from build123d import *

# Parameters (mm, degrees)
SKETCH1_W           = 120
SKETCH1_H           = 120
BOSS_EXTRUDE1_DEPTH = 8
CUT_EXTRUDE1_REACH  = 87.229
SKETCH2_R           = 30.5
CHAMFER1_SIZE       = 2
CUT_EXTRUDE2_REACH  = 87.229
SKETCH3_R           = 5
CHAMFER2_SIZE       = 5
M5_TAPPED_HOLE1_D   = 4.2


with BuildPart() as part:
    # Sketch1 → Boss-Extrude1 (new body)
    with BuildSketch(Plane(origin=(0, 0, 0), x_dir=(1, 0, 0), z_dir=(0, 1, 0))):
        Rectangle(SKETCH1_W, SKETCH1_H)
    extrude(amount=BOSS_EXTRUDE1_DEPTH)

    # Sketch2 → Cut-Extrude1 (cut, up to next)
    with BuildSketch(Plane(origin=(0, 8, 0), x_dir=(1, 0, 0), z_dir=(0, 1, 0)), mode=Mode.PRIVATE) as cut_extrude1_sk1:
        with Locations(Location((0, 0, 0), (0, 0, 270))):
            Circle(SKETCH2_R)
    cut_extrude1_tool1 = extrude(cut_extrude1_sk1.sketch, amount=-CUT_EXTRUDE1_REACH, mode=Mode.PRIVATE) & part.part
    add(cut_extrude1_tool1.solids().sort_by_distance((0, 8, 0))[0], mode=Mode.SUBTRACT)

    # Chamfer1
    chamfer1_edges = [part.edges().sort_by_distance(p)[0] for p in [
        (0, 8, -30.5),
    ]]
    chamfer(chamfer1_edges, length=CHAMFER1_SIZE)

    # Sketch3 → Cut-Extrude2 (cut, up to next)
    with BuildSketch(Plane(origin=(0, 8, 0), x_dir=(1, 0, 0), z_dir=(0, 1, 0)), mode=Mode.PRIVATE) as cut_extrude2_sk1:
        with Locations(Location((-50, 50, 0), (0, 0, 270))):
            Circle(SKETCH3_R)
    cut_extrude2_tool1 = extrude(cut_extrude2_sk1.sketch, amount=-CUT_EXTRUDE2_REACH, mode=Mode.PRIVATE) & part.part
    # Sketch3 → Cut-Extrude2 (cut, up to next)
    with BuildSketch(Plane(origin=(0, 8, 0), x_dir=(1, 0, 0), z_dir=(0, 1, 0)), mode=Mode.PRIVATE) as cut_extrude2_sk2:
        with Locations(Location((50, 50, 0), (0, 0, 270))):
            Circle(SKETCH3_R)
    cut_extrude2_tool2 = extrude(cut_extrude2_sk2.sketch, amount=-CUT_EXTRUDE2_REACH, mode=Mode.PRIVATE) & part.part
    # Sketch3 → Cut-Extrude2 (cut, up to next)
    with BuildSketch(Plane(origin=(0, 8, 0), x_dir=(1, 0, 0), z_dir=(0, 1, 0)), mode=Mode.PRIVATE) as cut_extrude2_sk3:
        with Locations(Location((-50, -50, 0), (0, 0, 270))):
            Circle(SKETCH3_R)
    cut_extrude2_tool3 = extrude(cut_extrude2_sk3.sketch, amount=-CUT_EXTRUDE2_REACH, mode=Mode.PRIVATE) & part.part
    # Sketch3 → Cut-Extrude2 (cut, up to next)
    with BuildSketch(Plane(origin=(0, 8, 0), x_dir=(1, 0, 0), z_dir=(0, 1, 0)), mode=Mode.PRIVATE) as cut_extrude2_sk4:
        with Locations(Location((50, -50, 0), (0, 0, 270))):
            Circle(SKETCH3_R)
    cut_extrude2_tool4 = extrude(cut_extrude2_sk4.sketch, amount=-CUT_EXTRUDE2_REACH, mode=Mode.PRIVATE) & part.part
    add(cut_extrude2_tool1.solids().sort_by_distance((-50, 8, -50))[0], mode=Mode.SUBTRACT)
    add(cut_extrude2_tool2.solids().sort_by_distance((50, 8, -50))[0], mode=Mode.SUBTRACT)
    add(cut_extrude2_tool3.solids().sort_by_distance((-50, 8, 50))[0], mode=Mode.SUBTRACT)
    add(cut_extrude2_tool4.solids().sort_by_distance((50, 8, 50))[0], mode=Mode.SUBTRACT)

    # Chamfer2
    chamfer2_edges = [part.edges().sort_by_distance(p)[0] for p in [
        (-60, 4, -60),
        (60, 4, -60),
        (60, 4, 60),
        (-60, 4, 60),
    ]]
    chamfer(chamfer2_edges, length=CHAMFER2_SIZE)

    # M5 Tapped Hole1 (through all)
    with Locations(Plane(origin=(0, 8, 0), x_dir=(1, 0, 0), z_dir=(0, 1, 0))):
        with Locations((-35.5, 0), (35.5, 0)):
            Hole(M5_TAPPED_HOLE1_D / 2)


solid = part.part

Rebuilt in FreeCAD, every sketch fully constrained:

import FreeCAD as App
import Part
import Sketcher

V = App.Vector


def edges_at(feature, points):
    """Names of the edges that pass closest to the given points."""
    edges = feature.Shape.Edges
    near = lambda p: min(range(len(edges)), key=lambda i: edges[i].distToShape(Part.Vertex(*p))[0])
    return sorted({f"Edge{near(p) + 1}" for p in points})


def add_polygon(sketch, points):
    """Adds a closed chain of lines whose ends are joined by coincident constraints."""
    first, n = sketch.GeometryCount, len(points)
    for a, b in zip(points, points[1:] + points[:1]):
        sketch.addGeometry(Part.LineSegment(App.Vector(*a, 0), App.Vector(*b, 0)), False)
    for i in range(n):
        sketch.addConstraint(Sketcher.Constraint("Coincident", first + i, 2, first + (i + 1) % n, 1))

doc = App.newDocument("Part")
params = doc.addObject("Spreadsheet::Sheet", "Params")
for row, (alias, value) in enumerate([
    ("sketch1_width", "120 mm"),
    ("pad1_length", "8 mm"),
    ("sketch2_diameter", "61 mm"),
    ("chamfer_size", "2 mm"),
    ("sketch3_diameter", "10 mm"),
    ("sketch4_diameter", "10 mm"),
    ("sketch5_diameter", "10 mm"),
    ("sketch6_diameter", "10 mm"),
    ("chamfer2_size", "5 mm"),
    ("sketch7_diameter", "4.2 mm"),
    ("hole_diameter", "4.2 mm"),
], start=1):
    params.set(f"A{row}", alias)
    params.set(f"B{row}", "=" + value)
    params.setAlias(f"B{row}", alias)

body = doc.addObject("PartDesign::Body", "Body")

# Sketch on XZ plane
sketch1 = body.newObject("Sketcher::SketchObject", "Sketch")
sketch1.AttachmentSupport = (doc.getObject("XZ_Plane"), [""])
sketch1.MapMode = "FlatFace"
add_polygon(sketch1, [(-60, -60), (-60, 60), (60, 60), (60, -60)])  # lines 0-3
sketch1.addConstraint([
    Sketcher.Constraint("Vertical", 0),
    Sketcher.Constraint("Horizontal", 1),
    Sketcher.Constraint("Vertical", 2),
    Sketcher.Constraint("Horizontal", 3),
    Sketcher.Constraint("Symmetric", 0, 2, 2, 2, -1, 1),
    Sketcher.Constraint("Equal", 3, 0),
    Sketcher.Constraint("DistanceX", 1, 1, 1, 2, 120.0),
])
sketch1.setExpression("Constraints[10]", "Params.sketch1_width")
pad1 = body.newObject("PartDesign::Pad", "Pad")
pad1.Profile = sketch1
pad1.setExpression("Length", "Params.pad1_length")
pad1.Reversed = True

# Sketch on XZ plane
sketch2 = body.newObject("Sketcher::SketchObject", "Sketch001")
sketch2.AttachmentSupport = (doc.getObject("XZ_Plane"), [""])
sketch2.MapMode = "FlatFace"
sketch2.AttachmentOffset = App.Placement(V(0, 0, -8), App.Rotation())
sketch2.addGeometry(Part.Circle(V(0, 0, 0), V(0, 0, 1), 30), False)
sketch2.addConstraint([
    Sketcher.Constraint("Coincident", 0, 3, -1, 1),
    Sketcher.Constraint("Diameter", 0, 61.0),
])
sketch2.setExpression("Constraints[1]", "Params.sketch2_diameter")
pocket1 = body.newObject("PartDesign::Pocket", "Pocket")
pocket1.Profile = sketch2
pocket1.Type = "UpToFirst"
pocket1.Reversed = True
doc.recompute()

chamfer = body.newObject("PartDesign::Chamfer", "Chamfer")
chamfer.Base = (pocket1, edges_at(pocket1, [(0, 8, -30.5)]))
chamfer.setExpression("Size", "Params.chamfer_size")

# Sketch on XZ plane
sketch3 = body.newObject("Sketcher::SketchObject", "Sketch002")
sketch3.AttachmentSupport = (doc.getObject("XZ_Plane"), [""])
sketch3.MapMode = "FlatFace"
sketch3.AttachmentOffset = App.Placement(V(0, 0, -8), App.Rotation())
sketch3.addGeometry(Part.Circle(V(-50, -50, 0), V(0, 0, 1), 5), False)
sketch3.addConstraint([
    Sketcher.Constraint("Diameter", 0, 10.0),
    Sketcher.Constraint("DistanceX", 0, 3, -1, 1, 50.0),
    Sketcher.Constraint("DistanceY", 0, 3, -1, 1, 50.0),
])
sketch3.setExpression("Constraints[0]", "Params.sketch3_diameter")
pocket2 = body.newObject("PartDesign::Pocket", "Pocket001")
pocket2.Profile = sketch3
pocket2.Type = "UpToFirst"
pocket2.Reversed = True

# Sketch on XZ plane
sketch4 = body.newObject("Sketcher::SketchObject", "Sketch003")
sketch4.AttachmentSupport = (doc.getObject("XZ_Plane"), [""])
sketch4.MapMode = "FlatFace"
sketch4.AttachmentOffset = App.Placement(V(0, 0, -8), App.Rotation())
sketch4.addGeometry(Part.Circle(V(50, -50, 0), V(0, 0, 1), 5), False)
sketch4.addConstraint([
    Sketcher.Constraint("Diameter", 0, 10.0),
    Sketcher.Constraint("DistanceX", -1, 1, 0, 3, 50.0),
    Sketcher.Constraint("DistanceY", 0, 3, -1, 1, 50.0),
])
sketch4.setExpression("Constraints[0]", "Params.sketch4_diameter")
pocket3 = body.newObject("PartDesign::Pocket", "Pocket002")
pocket3.Profile = sketch4
pocket3.Type = "UpToFirst"
pocket3.Reversed = True

# Sketch on XZ plane
sketch5 = body.newObject("Sketcher::SketchObject", "Sketch004")
sketch5.AttachmentSupport = (doc.getObject("XZ_Plane"), [""])
sketch5.MapMode = "FlatFace"
sketch5.AttachmentOffset = App.Placement(V(0, 0, -8), App.Rotation())
sketch5.addGeometry(Part.Circle(V(-50, 50, 0), V(0, 0, 1), 5), False)
sketch5.addConstraint([
    Sketcher.Constraint("Diameter", 0, 10.0),
    Sketcher.Constraint("DistanceX", 0, 3, -1, 1, 50.0),
    Sketcher.Constraint("DistanceY", -1, 1, 0, 3, 50.0),
])
sketch5.setExpression("Constraints[0]", "Params.sketch5_diameter")
pocket4 = body.newObject("PartDesign::Pocket", "Pocket003")
pocket4.Profile = sketch5
pocket4.Type = "UpToFirst"
pocket4.Reversed = True

# Sketch on XZ plane
sketch6 = body.newObject("Sketcher::SketchObject", "Sketch005")
sketch6.AttachmentSupport = (doc.getObject("XZ_Plane"), [""])
sketch6.MapMode = "FlatFace"
sketch6.AttachmentOffset = App.Placement(V(0, 0, -8), App.Rotation())
sketch6.addGeometry(Part.Circle(V(50, 50, 0), V(0, 0, 1), 5), False)
sketch6.addConstraint([
    Sketcher.Constraint("Diameter", 0, 10.0),
    Sketcher.Constraint("DistanceX", -1, 1, 0, 3, 50.0),
    Sketcher.Constraint("DistanceY", -1, 1, 0, 3, 50.0),
])
sketch6.setExpression("Constraints[0]", "Params.sketch6_diameter")
pocket5 = body.newObject("PartDesign::Pocket", "Pocket004")
pocket5.Profile = sketch6
pocket5.Type = "UpToFirst"
pocket5.Reversed = True
doc.recompute()

chamfer2 = body.newObject("PartDesign::Chamfer", "Chamfer001")
chamfer2.Base = (pocket5, edges_at(pocket5, [
    (-60, 4, -60),
    (60, 4, -60),
    (60, 4, 60),
    (-60, 4, 60),
]))
chamfer2.setExpression("Size", "Params.chamfer2_size")

# Sketch on XZ plane
sketch7 = body.newObject("Sketcher::SketchObject", "Sketch006")
sketch7.AttachmentSupport = (doc.getObject("XZ_Plane"), [""])
sketch7.MapMode = "FlatFace"
sketch7.AttachmentOffset = App.Placement(V(0, 0, -8), App.Rotation())
sketch7.addGeometry([
    Part.Circle(V(-35.5, 0, 0), V(0, 0, 1), 2.1),
    Part.Circle(V(35.5, 0, 0), V(0, 0, 1), 2.1),
], False)
sketch7.addConstraint([
    Sketcher.Constraint("Equal", 0, 1),
    Sketcher.Constraint("Symmetric", 0, 3, 1, 3, -1, 1),
    Sketcher.Constraint("PointOnObject", 0, 3, -1),
    Sketcher.Constraint("Diameter", 0, 4.2),
    Sketcher.Constraint("DistanceX", 0, 3, 1, 3, 71.0),
])
sketch7.setExpression("Constraints[3]", "Params.sketch7_diameter")
doc.recompute()
hole = body.newObject("PartDesign::Hole", "Hole")
hole.Profile = sketch7
hole.ThreadType = "None"
hole.setExpression("Diameter", "Params.hole_diameter")
hole.DepthType = "ThroughAll"
hole.Reversed = True

doc.recompute()
